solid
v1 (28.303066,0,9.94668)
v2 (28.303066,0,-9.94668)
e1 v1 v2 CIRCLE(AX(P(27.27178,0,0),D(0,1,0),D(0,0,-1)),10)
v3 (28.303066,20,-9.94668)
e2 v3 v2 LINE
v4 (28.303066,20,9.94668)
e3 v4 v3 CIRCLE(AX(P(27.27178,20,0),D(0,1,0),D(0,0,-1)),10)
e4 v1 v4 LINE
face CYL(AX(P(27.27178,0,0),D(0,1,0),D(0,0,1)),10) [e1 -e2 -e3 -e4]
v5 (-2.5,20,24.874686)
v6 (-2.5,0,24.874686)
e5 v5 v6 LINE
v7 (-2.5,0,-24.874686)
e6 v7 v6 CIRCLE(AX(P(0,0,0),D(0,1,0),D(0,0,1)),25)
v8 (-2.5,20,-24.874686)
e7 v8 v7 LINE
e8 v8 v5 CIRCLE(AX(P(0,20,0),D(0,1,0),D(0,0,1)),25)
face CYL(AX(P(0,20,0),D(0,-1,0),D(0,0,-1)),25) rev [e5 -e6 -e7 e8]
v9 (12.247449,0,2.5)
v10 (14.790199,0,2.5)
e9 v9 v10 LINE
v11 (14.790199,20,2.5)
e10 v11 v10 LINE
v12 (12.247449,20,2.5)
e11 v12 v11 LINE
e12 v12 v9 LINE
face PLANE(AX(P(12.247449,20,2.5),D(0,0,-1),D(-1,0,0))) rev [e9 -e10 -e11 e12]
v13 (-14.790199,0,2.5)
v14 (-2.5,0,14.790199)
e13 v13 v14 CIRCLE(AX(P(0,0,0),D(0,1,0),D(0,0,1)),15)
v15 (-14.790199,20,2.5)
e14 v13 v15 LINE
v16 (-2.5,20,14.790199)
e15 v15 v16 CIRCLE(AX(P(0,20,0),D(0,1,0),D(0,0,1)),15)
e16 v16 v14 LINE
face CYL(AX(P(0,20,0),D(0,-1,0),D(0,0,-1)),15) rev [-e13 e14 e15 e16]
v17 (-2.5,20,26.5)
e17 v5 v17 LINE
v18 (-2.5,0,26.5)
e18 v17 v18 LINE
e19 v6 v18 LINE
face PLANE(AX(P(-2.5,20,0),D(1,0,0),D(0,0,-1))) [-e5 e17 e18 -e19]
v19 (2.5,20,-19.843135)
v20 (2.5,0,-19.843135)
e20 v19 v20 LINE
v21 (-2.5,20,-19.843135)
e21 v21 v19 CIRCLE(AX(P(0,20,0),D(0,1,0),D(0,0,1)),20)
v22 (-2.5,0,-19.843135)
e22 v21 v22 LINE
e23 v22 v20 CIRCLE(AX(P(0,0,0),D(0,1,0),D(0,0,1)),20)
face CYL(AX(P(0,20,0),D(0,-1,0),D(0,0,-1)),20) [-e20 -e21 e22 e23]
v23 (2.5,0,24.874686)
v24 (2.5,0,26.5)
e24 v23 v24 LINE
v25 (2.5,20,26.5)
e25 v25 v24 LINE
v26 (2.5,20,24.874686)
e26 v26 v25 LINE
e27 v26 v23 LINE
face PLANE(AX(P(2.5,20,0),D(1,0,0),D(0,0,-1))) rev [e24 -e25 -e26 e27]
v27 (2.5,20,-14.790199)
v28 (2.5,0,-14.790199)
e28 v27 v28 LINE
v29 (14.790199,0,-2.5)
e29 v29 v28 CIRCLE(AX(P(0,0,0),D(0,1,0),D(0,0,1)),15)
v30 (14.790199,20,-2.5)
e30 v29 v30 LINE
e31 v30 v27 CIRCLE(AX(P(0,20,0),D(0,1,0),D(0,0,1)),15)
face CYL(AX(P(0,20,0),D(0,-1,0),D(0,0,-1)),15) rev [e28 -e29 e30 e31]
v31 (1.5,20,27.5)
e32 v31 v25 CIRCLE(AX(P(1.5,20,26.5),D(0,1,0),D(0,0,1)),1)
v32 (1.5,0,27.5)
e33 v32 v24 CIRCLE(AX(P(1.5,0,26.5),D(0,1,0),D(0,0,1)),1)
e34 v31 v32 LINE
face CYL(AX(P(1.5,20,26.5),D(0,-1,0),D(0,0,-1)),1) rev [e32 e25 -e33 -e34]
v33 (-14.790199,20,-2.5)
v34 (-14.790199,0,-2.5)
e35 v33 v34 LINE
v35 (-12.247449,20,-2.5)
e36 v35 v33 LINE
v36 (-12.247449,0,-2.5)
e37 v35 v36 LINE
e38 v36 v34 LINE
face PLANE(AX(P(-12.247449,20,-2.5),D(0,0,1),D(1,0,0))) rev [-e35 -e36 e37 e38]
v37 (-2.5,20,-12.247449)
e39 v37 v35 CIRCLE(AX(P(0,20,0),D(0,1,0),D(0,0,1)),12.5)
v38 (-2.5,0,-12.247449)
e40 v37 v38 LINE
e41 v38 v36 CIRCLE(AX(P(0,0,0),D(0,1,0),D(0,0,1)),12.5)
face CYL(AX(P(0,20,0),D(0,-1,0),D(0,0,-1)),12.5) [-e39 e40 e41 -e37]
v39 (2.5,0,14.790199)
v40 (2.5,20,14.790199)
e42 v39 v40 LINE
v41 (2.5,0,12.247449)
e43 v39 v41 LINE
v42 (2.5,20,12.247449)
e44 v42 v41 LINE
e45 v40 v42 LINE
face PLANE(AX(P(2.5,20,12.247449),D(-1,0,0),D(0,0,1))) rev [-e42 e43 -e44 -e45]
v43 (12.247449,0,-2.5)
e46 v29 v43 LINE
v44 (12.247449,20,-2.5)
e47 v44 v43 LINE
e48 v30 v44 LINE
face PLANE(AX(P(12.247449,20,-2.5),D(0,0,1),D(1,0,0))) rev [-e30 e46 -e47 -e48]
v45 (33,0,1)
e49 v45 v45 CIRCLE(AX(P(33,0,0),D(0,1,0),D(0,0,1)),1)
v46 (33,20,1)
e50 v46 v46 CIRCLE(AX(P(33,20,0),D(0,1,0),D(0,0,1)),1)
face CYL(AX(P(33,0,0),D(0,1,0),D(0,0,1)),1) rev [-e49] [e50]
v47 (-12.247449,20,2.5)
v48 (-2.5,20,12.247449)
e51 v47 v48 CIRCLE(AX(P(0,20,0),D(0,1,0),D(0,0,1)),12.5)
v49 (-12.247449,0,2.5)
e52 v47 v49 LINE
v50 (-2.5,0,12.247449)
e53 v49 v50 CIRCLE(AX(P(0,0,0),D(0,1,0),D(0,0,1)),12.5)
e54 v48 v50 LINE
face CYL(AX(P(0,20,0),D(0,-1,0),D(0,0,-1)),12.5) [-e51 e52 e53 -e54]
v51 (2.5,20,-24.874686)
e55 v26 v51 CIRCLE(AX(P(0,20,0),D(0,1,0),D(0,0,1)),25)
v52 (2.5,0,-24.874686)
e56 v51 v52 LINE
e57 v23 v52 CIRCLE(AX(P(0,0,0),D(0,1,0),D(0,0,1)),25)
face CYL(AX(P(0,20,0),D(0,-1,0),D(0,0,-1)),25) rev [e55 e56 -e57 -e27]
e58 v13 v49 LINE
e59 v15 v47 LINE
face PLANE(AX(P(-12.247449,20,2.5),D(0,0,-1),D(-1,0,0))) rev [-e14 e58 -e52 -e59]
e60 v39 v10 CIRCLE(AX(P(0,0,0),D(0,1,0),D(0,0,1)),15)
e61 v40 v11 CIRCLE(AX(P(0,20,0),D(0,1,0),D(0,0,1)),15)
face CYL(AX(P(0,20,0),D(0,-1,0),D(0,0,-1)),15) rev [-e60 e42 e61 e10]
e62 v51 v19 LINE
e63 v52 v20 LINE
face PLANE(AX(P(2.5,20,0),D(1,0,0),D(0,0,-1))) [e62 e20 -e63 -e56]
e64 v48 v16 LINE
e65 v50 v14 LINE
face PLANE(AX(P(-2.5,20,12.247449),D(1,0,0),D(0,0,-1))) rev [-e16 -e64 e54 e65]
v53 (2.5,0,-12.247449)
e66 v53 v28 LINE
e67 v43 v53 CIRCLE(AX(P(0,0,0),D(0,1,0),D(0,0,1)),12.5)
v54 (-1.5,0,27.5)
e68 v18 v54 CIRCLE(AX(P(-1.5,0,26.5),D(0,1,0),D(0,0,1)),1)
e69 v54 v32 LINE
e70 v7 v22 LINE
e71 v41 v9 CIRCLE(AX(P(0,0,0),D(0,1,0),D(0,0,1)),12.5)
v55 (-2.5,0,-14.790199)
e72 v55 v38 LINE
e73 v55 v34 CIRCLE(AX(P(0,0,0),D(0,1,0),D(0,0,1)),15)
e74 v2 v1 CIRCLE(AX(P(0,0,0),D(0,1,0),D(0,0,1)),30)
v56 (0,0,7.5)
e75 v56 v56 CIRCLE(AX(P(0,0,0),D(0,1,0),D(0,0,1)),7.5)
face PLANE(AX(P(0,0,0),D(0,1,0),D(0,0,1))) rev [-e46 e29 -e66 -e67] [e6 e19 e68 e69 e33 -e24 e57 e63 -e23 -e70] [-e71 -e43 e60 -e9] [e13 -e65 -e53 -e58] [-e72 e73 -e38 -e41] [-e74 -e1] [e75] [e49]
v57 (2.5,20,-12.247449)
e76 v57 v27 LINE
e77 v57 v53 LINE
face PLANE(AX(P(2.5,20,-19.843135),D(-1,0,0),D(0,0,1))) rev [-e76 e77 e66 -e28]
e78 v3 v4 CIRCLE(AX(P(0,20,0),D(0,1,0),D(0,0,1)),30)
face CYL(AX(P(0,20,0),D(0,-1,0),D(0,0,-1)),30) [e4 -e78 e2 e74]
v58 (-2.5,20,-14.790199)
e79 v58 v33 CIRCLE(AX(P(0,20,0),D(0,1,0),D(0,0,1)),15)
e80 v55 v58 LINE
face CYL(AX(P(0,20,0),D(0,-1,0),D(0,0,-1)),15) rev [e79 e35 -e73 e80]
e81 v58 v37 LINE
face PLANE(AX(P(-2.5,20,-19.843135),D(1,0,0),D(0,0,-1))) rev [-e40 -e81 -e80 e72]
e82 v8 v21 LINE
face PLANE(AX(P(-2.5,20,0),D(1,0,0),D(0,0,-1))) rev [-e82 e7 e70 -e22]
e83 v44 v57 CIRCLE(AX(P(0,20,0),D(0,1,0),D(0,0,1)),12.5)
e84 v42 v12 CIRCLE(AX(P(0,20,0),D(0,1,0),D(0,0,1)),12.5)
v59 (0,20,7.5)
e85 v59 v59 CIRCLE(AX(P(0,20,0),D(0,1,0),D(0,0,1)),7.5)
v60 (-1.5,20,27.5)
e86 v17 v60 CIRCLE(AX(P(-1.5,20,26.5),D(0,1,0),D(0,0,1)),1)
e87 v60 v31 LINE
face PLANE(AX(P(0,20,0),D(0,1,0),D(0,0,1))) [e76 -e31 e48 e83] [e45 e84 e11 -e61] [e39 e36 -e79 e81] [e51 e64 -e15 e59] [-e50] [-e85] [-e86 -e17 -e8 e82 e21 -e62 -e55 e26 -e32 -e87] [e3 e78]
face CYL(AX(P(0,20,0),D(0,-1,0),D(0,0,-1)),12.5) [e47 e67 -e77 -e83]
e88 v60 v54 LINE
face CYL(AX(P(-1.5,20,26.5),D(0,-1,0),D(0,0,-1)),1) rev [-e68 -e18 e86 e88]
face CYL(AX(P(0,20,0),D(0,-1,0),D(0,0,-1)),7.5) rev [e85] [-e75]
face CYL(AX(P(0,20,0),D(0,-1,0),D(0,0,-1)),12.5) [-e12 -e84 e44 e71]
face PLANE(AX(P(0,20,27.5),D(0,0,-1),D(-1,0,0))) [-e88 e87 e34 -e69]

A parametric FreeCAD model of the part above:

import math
import FreeCAD as App
import Part
import Sketcher

V = App.Vector
Q = App.Units.Quantity

doc = App.newDocument("Part")
body = doc.addObject("PartDesign::Body", "Body")

# Sketch on XZ plane
sketch1 = doc.addObject("Sketcher::SketchObject", "Sketch")
body.addObject(sketch1)
sketch1.AttachmentSupport = (doc.XZ_Plane, [""])
sketch1.MapMode = "FlatFace"
sketch1.addGeometry(Part.Circle(V(0, 0, 0), V(0, 0, 1), 30), False)
sketch1.addGeometry(Part.LineSegment(V(-2.5, 26.5, 0), V(-2.5, 24.874686, 0)), False)
sketch1.addGeometry(Part.ArcOfCircle(Part.Circle(V(0, 0, 0), V(0, 0, 1), 25), math.radians(95.73917), math.radians(264.26083)), False)
sketch1.addGeometry(Part.LineSegment(V(-2.5, -24.874686, 0), V(-2.5, -19.843135, 0)), False)
sketch1.addGeometry(Part.ArcOfCircle(Part.Circle(V(0, 0, 0), V(0, 0, 1), 20), math.radians(-82.819244), math.radians(262.819244)), False)
sketch1.addGeometry(Part.LineSegment(V(2.5, -19.843135, 0), V(2.5, -24.874686, 0)), False)
sketch1.addGeometry(Part.ArcOfCircle(Part.Circle(V(0, 0, 0), V(0, 0, 1), 25), math.radians(-84.26083), math.radians(84.26083)), False)
sketch1.addGeometry(Part.LineSegment(V(2.5, 24.874686, 0), V(2.5, 26.5, 0)), False)
sketch1.addGeometry(Part.ArcOfCircle(Part.Circle(V(1.5, 26.5, 0), V(0, 0, 1), 1), math.radians(0), math.radians(90)), False)
sketch1.addGeometry(Part.LineSegment(V(1.5, 27.5, 0), V(-1.5, 27.5, 0)), False)
sketch1.addGeometry(Part.ArcOfCircle(Part.Circle(V(-1.5, 26.5, 0), V(0, 0, 1), 1), math.radians(90), math.radians(180)), False)
sketch1.addGeometry(Part.Circle(V(0, 0, 0), V(0, 0, 1), 15), False)
sketch1.addConstraint(Sketcher.Constraint("Coincident", 1, 2, 2, 1))
sketch1.addConstraint(Sketcher.Constraint("Coincident", 2, 2, 3, 1))
sketch1.addConstraint(Sketcher.Constraint("Coincident", 3, 2, 4, 2))
sketch1.addConstraint(Sketcher.Constraint("Coincident", 4, 1, 5, 1))
sketch1.addConstraint(Sketcher.Constraint("Coincident", 5, 2, 6, 1))
sketch1.addConstraint(Sketcher.Constraint("Coincident", 6, 2, 7, 1))
sketch1.addConstraint(Sketcher.Constraint("Tangent", 7, 2, 8, 1))
sketch1.addConstraint(Sketcher.Constraint("Tangent", 8, 2, 9, 1))
sketch1.addConstraint(Sketcher.Constraint("Tangent", 9, 2, 10, 1))
sketch1.addConstraint(Sketcher.Constraint("Tangent", 10, 2, 1, 1))
sketch1.addConstraint(Sketcher.Constraint("Vertical", 1))
sketch1.addConstraint(Sketcher.Constraint("Vertical", 3))
sketch1.addConstraint(Sketcher.Constraint("Vertical", 5))
sketch1.addConstraint(Sketcher.Constraint("Vertical", 7))
sketch1.addConstraint(Sketcher.Constraint("Horizontal", 9))
sketch1.addConstraint(Sketcher.Constraint("Coincident", 0, 3, -1, 1))
sketch1.addConstraint(Sketcher.Constraint("Coincident", 2, 3, -1, 1))
sketch1.addConstraint(Sketcher.Constraint("Coincident", 4, 3, -1, 1))
sketch1.addConstraint(Sketcher.Constraint("Coincident", 6, 3, -1, 1))
sketch1.addConstraint(Sketcher.Constraint("Coincident", 11, 3, -1, 1))
sketch1.addConstraint(Sketcher.Constraint("Equal", 2, 6))
sketch1.addConstraint(Sketcher.Constraint("Equal", 8, 10))
sketch1.addConstraint(Sketcher.Constraint("Horizontal", 3, 2, 4, 1))
sketch1.addConstraint(Sketcher.Constraint("Horizontal", 1, 2, 6, 2))
sketch1.addConstraint(Sketcher.Constraint("Vertical", 1, 2, 2, 2))
sketch1.addConstraint(Sketcher.Constraint("Diameter", 0, Q("60 mm")))
sketch1.addConstraint(Sketcher.Constraint("Diameter", 11, Q("30 mm")))
sketch1.addConstraint(Sketcher.Constraint("Radius", 2, Q("25 mm")))
sketch1.addConstraint(Sketcher.Constraint("Radius", 4, Q("20 mm")))
sketch1.addConstraint(Sketcher.Constraint("Radius", 8, Q("1 mm")))
sketch1.addConstraint(Sketcher.Constraint("DistanceX", 9, 2, 9, 1, Q("3 mm")))
sketch1.addConstraint(Sketcher.Constraint("DistanceY", -1, 1, 8, 3, Q("26.5 mm")))
pad1 = doc.addObject("PartDesign::Pad", "Pad")
body.addObject(pad1)
pad1.Profile = sketch1
pad1.Length = 20
pad1.Reversed = True

# Sketch on XZ plane
sketch2 = doc.addObject("Sketcher::SketchObject", "Sketch001")
body.addObject(sketch2)
sketch2.AttachmentSupport = (doc.XZ_Plane, [""])
sketch2.MapMode = "FlatFace"
sketch2.AttachmentOffset = App.Placement(V(0, 0, -20), App.Rotation())
sketch2.addGeometry(Part.LineSegment(V(27.27178, -10, 0), V(27.27178, 10, 0)), False)
sketch2.addGeometry(Part.ArcOfCircle(Part.Circle(V(27.27178, 0, 0), V(0, 0, 1), 10), math.radians(-90), math.radians(90)), False)
sketch2.addConstraint(Sketcher.Constraint("Coincident", 0, 1, 1, 1))
sketch2.addConstraint(Sketcher.Constraint("Coincident", 1, 2, 0, 2))
sketch2.addConstraint(Sketcher.Constraint("Vertical", 0))
sketch2.addConstraint(Sketcher.Constraint("PointOnObject", 1, 3, -1))
sketch2.addConstraint(Sketcher.Constraint("Vertical", 1, 3, 0, 1))
sketch2.addConstraint(Sketcher.Constraint("Radius", 1, Q("10 mm")))
sketch2.addConstraint(Sketcher.Constraint("DistanceX", -1, 1, 1, 3, Q("27.27178 mm")))
pad2 = doc.addObject("PartDesign::Pad", "Pad001")
body.addObject(pad2)
pad2.Profile = sketch2
pad2.Length = 20

# Sketch on XZ plane
sketch3 = doc.addObject("Sketcher::SketchObject", "Sketch002")
body.addObject(sketch3)
sketch3.AttachmentSupport = (doc.XZ_Plane, [""])
sketch3.MapMode = "FlatFace"
sketch3.AttachmentOffset = App.Placement(V(0, 0, -20), App.Rotation())
sketch3.addGeometry(Part.Circle(V(33, 0, 0), V(0, 0, 1), 1), False)
sketch3.addConstraint(Sketcher.Constraint("PointOnObject", 0, 3, -1))
sketch3.addConstraint(Sketcher.Constraint("Diameter", 0, Q("2 mm")))
sketch3.addConstraint(Sketcher.Constraint("DistanceX", -1, 1, 0, 3, Q("33 mm")))
pocket1 = doc.addObject("PartDesign::Pocket", "Pocket")
body.addObject(pocket1)
pocket1.Profile = sketch3
pocket1.Length = 20
pocket1.Reversed = True

# Sketch on XZ plane
sketch4 = doc.addObject("Sketcher::SketchObject", "Sketch003")
body.addObject(sketch4)
sketch4.AttachmentSupport = (doc.XZ_Plane, [""])
sketch4.MapMode = "FlatFace"
sketch4.addGeometry(Part.LineSegment(V(2.5, -19.843135, 0), V(-2.5, -19.843135, 0)), False)
sketch4.addGeometry(Part.LineSegment(V(-2.5, -19.843135, 0), V(-2.5, -12.247449, 0)), False)
sketch4.addGeometry(Part.ArcOfCircle(Part.Circle(V(0, 0, 0), V(0, 0, 1), 12.5), math.radians(-168.463041), math.radians(-101.536959)), False)
sketch4.addGeometry(Part.LineSegment(V(-12.247449, -2.5, 0), V(-16.958645, -2.5, 0)), False)
sketch4.addGeometry(Part.LineSegment(V(-16.958645, -2.5, 0), V(-16.958645, 2.5, 0)), False)
sketch4.addGeometry(Part.LineSegment(V(-16.958645, 2.5, 0), V(-12.247449, 2.5, 0)), False)
sketch4.addGeometry(Part.ArcOfCircle(Part.Circle(V(0, 0, 0), V(0, 0, 1), 12.5), math.radians(101.536959), math.radians(168.463041)), False)
sketch4.addGeometry(Part.LineSegment(V(-2.5, 12.247449, 0), V(-2.5, 17.575658, 0)), False)
sketch4.addGeometry(Part.LineSegment(V(-2.5, 17.575658, 0), V(2.5, 17.575658, 0)), False)
sketch4.addGeometry(Part.LineSegment(V(2.5, 17.575658, 0), V(2.5, 12.247449, 0)), False)
sketch4.addGeometry(Part.ArcOfCircle(Part.Circle(V(0, 0, 0), V(0, 0, 1), 12.5), math.radians(11.536959), math.radians(78.463041)), False)
sketch4.addGeometry(Part.LineSegment(V(12.247449, 2.5, 0), V(16.124946, 2.5, 0)), False)
sketch4.addGeometry(Part.LineSegment(V(16.124946, 2.5, 0), V(16.124946, -2.5, 0)), False)
sketch4.addGeometry(Part.LineSegment(V(16.124946, -2.5, 0), V(12.247449, -2.5, 0)), False)
sketch4.addGeometry(Part.ArcOfCircle(Part.Circle(V(0, 0, 0), V(0, 0, 1), 12.5), math.radians(-78.463041), math.radians(-11.536959)), False)
sketch4.addGeometry(Part.LineSegment(V(2.5, -12.247449, 0), V(2.5, -19.843135, 0)), False)
sketch4.addGeometry(Part.Circle(V(0, 0, 0), V(0, 0, 1), 7.5), False)
sketch4.addConstraint(Sketcher.Constraint("Coincident", 0, 2, 1, 1))
sketch4.addConstraint(Sketcher.Constraint("Coincident", 1, 2, 2, 2))
sketch4.addConstraint(Sketcher.Constraint("Coincident", 2, 1, 3, 1))
sketch4.addConstraint(Sketcher.Constraint("Coincident", 3, 2, 4, 1))
sketch4.addConstraint(Sketcher.Constraint("Coincident", 4, 2, 5, 1))
sketch4.addConstraint(Sketcher.Constraint("Coincident", 5, 2, 6, 2))
sketch4.addConstraint(Sketcher.Constraint("Coincident", 6, 1, 7, 1))
sketch4.addConstraint(Sketcher.Constraint("Coincident", 7, 2, 8, 1))
sketch4.addConstraint(Sketcher.Constraint("Coincident", 8, 2, 9, 1))
sketch4.addConstraint(Sketcher.Constraint("Coincident", 9, 2, 10, 2))
sketch4.addConstraint(Sketcher.Constraint("Coincident", 10, 1, 11, 1))
sketch4.addConstraint(Sketcher.Constraint("Coincident", 11, 2, 12, 1))
sketch4.addConstraint(Sketcher.Constraint("Coincident", 12, 2, 13, 1))
sketch4.addConstraint(Sketcher.Constraint("Coincident", 13, 2, 14, 2))
sketch4.addConstraint(Sketcher.Constraint("Coincident", 14, 1, 15, 1))
sketch4.addConstraint(Sketcher.Constraint("Coincident", 15, 2, 0, 1))
sketch4.addConstraint(Sketcher.Constraint("Horizontal", 0))
sketch4.addConstraint(Sketcher.Constraint("Vertical", 1))
sketch4.addConstraint(Sketcher.Constraint("Horizontal", 3))
sketch4.addConstraint(Sketcher.Constraint("Vertical", 4))
sketch4.addConstraint(Sketcher.Constraint("Horizontal", 5))
sketch4.addConstraint(Sketcher.Constraint("Vertical", 7))
sketch4.addConstraint(Sketcher.Constraint("Horizontal", 8))
sketch4.addConstraint(Sketcher.Constraint("Vertical", 9))
sketch4.addConstraint(Sketcher.Constraint("Horizontal", 11))
sketch4.addConstraint(Sketcher.Constraint("Vertical", 12))
sketch4.addConstraint(Sketcher.Constraint("Horizontal", 13))
sketch4.addConstraint(Sketcher.Constraint("Vertical", 15))
sketch4.addConstraint(Sketcher.Constraint("Coincident", 2, 3, -1, 1))
sketch4.addConstraint(Sketcher.Constraint("Coincident", 6, 3, -1, 1))
sketch4.addConstraint(Sketcher.Constraint("Coincident", 10, 3, -1, 1))
sketch4.addConstraint(Sketcher.Constraint("Coincident", 14, 3, -1, 1))
sketch4.addConstraint(Sketcher.Constraint("Coincident", 16, 3, -1, 1))
sketch4.addConstraint(Sketcher.Constraint("Equal", 2, 6))
sketch4.addConstraint(Sketcher.Constraint("Equal", 6, 10))
sketch4.addConstraint(Sketcher.Constraint("Equal", 10, 14))
sketch4.addConstraint(Sketcher.Constraint("Horizontal", 6, 1, 9, 2))
sketch4.addConstraint(Sketcher.Constraint("Horizontal", 5, 2, 10, 1))
sketch4.addConstraint(Sketcher.Constraint("Horizontal", 3, 2, 12, 2))
sketch4.addConstraint(Sketcher.Constraint("Horizontal", 1, 2, 14, 1))
sketch4.addConstraint(Sketcher.Constraint("Vertical", 2, 1, 5, 2))
sketch4.addConstraint(Sketcher.Constraint("Vertical", 1, 2, 6, 1))
sketch4.addConstraint(Sketcher.Constraint("Equal", 8, 4))
sketch4.addConstraint(Sketcher.Constraint("Diameter", 16, Q("15 mm")))
sketch4.addConstraint(Sketcher.Constraint("Radius", 2, Q("12.5 mm")))
sketch4.addConstraint(Sketcher.Constraint("DistanceX", 0, 2, 0, 1, Q("5 mm")))
sketch4.addConstraint(Sketcher.Constraint("DistanceY", 7, 1, 7, 2, Q("5.328209 mm")))
sketch4.addConstraint(Sketcher.Constraint("DistanceX", 3, 2, 3, 1, Q("4.711197 mm")))
sketch4.addConstraint(Sketcher.Constraint("DistanceX", 11, 1, 11, 2, Q("3.877497 mm")))
sketch4.addConstraint(Sketcher.Constraint("DistanceY", 1, 1, 1, 2, Q("7.595686 mm")))
pad3 = doc.addObject("PartDesign::Pad", "Pad002")
body.addObject(pad3)
pad3.Profile = sketch4
pad3.Length = 20
pad3.Reversed = True

doc.recompute()
